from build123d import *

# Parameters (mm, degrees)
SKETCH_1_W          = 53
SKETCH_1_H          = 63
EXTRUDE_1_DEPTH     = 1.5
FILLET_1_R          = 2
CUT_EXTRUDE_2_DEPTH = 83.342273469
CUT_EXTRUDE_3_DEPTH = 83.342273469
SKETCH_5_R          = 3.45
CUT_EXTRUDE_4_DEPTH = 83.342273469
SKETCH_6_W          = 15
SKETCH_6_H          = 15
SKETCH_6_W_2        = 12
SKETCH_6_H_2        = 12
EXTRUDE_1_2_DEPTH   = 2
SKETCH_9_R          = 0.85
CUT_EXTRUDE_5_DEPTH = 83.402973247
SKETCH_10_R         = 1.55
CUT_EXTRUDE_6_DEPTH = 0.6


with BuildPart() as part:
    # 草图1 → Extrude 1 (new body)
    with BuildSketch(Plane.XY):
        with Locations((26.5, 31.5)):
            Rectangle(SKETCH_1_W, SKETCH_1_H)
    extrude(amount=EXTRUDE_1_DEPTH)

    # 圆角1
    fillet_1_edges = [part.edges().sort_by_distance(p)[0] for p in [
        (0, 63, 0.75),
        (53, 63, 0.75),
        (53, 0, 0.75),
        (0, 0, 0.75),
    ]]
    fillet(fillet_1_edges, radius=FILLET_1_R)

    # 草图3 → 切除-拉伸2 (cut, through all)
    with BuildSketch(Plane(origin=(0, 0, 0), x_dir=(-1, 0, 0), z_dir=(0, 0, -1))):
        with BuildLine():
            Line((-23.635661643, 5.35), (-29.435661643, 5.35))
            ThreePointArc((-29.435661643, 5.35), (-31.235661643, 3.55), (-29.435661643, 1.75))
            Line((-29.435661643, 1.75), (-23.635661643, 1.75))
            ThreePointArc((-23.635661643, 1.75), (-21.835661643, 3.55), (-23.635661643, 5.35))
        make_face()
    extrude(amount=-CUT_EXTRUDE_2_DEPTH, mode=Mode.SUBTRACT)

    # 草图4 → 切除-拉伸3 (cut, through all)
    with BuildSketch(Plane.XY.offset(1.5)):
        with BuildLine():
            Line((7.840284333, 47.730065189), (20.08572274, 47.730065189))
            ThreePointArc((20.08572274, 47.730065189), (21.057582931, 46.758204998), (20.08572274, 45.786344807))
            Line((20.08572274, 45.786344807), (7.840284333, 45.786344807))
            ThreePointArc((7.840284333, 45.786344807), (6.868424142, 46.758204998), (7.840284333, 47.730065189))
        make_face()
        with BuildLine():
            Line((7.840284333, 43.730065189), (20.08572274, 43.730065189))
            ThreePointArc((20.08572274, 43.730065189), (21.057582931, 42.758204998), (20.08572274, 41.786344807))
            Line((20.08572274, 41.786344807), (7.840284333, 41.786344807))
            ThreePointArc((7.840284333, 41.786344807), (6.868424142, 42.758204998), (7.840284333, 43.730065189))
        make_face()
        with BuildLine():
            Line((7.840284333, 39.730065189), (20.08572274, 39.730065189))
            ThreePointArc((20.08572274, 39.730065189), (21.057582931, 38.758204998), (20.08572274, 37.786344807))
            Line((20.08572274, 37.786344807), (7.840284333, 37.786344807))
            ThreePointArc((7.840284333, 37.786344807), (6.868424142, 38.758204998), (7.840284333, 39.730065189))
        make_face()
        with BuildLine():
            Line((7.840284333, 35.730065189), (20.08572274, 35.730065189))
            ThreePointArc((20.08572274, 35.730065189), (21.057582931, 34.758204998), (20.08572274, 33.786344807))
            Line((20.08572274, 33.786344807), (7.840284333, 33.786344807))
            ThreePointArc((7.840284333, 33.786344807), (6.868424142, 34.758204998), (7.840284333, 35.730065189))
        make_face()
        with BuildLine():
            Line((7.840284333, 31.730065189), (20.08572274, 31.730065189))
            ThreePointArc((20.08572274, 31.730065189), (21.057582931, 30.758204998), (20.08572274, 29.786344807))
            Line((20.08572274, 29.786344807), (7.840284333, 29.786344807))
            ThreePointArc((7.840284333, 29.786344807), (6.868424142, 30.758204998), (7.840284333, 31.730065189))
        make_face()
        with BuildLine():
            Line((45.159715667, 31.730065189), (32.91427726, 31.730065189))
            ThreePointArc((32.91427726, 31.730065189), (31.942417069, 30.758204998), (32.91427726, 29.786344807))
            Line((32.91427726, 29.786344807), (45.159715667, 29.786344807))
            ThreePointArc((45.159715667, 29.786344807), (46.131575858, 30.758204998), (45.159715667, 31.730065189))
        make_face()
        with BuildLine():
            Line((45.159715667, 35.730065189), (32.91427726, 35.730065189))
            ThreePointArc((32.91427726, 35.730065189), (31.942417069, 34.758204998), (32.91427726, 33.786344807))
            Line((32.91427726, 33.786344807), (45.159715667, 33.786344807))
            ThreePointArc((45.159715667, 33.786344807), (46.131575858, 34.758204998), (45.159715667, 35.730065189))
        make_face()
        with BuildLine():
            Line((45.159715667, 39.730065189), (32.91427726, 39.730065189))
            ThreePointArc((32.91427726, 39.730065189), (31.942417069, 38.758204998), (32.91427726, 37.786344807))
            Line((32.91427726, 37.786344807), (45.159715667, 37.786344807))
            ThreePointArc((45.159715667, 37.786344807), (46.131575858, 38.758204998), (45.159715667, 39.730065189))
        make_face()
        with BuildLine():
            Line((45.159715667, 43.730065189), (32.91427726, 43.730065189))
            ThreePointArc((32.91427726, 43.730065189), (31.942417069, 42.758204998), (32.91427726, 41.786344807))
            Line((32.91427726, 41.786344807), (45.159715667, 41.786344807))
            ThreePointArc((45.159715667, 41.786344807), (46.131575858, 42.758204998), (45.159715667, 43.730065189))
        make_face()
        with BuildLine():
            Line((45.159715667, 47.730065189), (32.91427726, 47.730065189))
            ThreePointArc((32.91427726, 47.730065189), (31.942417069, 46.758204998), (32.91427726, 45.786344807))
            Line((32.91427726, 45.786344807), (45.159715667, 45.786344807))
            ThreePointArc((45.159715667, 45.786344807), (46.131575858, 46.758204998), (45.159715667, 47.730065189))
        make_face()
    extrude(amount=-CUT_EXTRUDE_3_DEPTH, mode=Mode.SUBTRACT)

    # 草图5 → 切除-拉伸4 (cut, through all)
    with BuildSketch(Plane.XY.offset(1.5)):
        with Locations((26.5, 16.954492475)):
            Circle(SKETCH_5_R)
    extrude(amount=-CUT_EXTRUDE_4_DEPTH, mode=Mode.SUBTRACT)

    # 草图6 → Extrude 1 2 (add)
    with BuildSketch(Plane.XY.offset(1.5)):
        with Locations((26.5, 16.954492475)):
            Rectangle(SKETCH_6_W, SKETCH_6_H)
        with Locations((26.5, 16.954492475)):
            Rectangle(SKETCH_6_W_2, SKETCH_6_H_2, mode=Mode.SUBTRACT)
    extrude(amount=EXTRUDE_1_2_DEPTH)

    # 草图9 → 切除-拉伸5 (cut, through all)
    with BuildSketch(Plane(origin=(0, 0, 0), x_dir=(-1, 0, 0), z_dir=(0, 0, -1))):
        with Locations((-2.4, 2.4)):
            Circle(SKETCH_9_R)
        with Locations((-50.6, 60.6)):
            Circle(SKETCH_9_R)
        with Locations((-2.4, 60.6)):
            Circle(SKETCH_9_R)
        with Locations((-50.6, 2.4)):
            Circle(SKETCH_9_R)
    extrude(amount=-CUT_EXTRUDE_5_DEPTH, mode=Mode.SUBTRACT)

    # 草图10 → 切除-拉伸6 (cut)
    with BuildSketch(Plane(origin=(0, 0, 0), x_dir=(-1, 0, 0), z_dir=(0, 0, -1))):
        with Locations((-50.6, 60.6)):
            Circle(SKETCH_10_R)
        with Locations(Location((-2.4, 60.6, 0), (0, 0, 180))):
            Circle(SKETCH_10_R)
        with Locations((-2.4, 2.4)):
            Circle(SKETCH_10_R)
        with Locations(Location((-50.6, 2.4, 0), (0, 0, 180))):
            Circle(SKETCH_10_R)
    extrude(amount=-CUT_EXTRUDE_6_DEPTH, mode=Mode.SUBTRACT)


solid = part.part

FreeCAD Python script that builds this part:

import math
import FreeCAD as App
import Part
import Sketcher
Q = App.Units.Quantity


def edges_at(feature, points):
    """Names of the edges that pass closest to the given points."""
    edges = feature.Shape.Edges
    near = lambda p: min(range(len(edges)), key=lambda i: edges[i].distToShape(Part.Vertex(*p))[0])
    return sorted({f"Edge{near(p) + 1}" for p in points})

doc = App.newDocument("Part")
body = doc.addObject("PartDesign::Body", "Body")

# Sketch on XY plane
sketch1 = doc.addObject("Sketcher::SketchObject", "Sketch")
body.addObject(sketch1)
sketch1.AttachmentSupport = (doc.XY_Plane, [""])
sketch1.MapMode = "FlatFace"
sketch1.addGeometry([
    Part.LineSegment(App.Vector(0, 63, 0), App.Vector(0, 0, 0)),
    Part.LineSegment(App.Vector(0, 0, 0), App.Vector(53, 0, 0)),
    Part.LineSegment(App.Vector(53, 0, 0), App.Vector(53, 63, 0)),
    Part.LineSegment(App.Vector(53, 63, 0), App.Vector(0, 63, 0)),
], False)
sketch1.addConstraint([
    Sketcher.Constraint("Coincident", 0, 2, 1, 1),
    Sketcher.Constraint("Coincident", 1, 2, 2, 1),
    Sketcher.Constraint("Coincident", 2, 2, 3, 1),
    Sketcher.Constraint("Coincident", 3, 2, 0, 1),
    Sketcher.Constraint("Vertical", 0),
    Sketcher.Constraint("Horizontal", 1),
    Sketcher.Constraint("Vertical", 2),
    Sketcher.Constraint("Horizontal", 3),
    Sketcher.Constraint("Coincident", 0, 2, -1, 1),
    Sketcher.Constraint("DistanceX", 1, 1, 1, 2, Q("53 mm")),
    Sketcher.Constraint("DistanceY", 0, 2, 0, 1, Q("63 mm")),
])
pad1 = doc.addObject("PartDesign::Pad", "Pad")
body.addObject(pad1)
pad1.Profile = sketch1
pad1.Length = 1.5
doc.recompute()

fillet = doc.addObject("PartDesign::Fillet", "Fillet")
body.addObject(fillet)
fillet.Base = (pad1, edges_at(pad1, [
    (0, 63, 0.75),
    (53, 63, 0.75),
    (53, 0, 0.75),
    (0, 0, 0.75),
]))
fillet.Radius = 2

# Sketch on XY plane
sketch2 = doc.addObject("Sketcher::SketchObject", "Sketch001")
body.addObject(sketch2)
sketch2.AttachmentSupport = (doc.XY_Plane, [""])
sketch2.MapMode = "FlatFace"
sketch2.addGeometry([
    Part.LineSegment(App.Vector(23.6, 5.3, 0), App.Vector(29.4, 5.3, 0)),
    Part.ArcOfCircle(Part.Circle(App.Vector(29.4, 3.5, 0), App.Vector(0, 0, 1), 1.8), math.radians(-90), math.radians(90)),
    Part.LineSegment(App.Vector(29.4, 1.8, 0), App.Vector(23.6, 1.8, 0)),
    Part.ArcOfCircle(Part.Circle(App.Vector(23.6, 3.5, 0), App.Vector(0, 0, 1), 1.8), math.radians(90), math.radians(270)),
], False)
sketch2.addConstraint([
    Sketcher.Constraint("Tangent", 0, 2, 1, 2),
    Sketcher.Constraint("Tangent", 1, 1, 2, 1),
    Sketcher.Constraint("Tangent", 2, 2, 3, 2),
    Sketcher.Constraint("Tangent", 3, 1, 0, 1),
    Sketcher.Constraint("Horizontal", 0),
    Sketcher.Constraint("Horizontal", 2),
    Sketcher.Constraint("Radius", 1, Q("1.8 mm")),
    Sketcher.Constraint("DistanceX", 0, 1, 0, 2, Q("5.8 mm")),
    Sketcher.Constraint("DistanceY", -1, 1, 1, 3, Q("3.55 mm")),
    Sketcher.Constraint("DistanceX", -1, 1, 1, 3, Q("29.435662 mm")),
])
pocket1 = doc.addObject("PartDesign::Pocket", "Pocket")
body.addObject(pocket1)
pocket1.Profile = sketch2
pocket1.Type = "ThroughAll"
pocket1.Reversed = True

# Sketch on XY plane
sketch3 = doc.addObject("Sketcher::SketchObject", "Sketch002")
body.addObject(sketch3)
sketch3.AttachmentSupport = (doc.XY_Plane, [""])
sketch3.MapMode = "FlatFace"
sketch3.AttachmentOffset = App.Placement(App.Vector(0, 0, 1.5), App.Rotation())
sketch3.addGeometry([
    Part.LineSegment(App.Vector(20.1, 47.7, 0), App.Vector(7.8, 47.7, 0)),  # 0
    Part.ArcOfCircle(Part.Circle(App.Vector(7.8, 46.8, 0), App.Vector(0, 0, 1), 1), math.radians(90), math.radians(270)),  # 1
    Part.LineSegment(App.Vector(7.8, 45.8, 0), App.Vector(20.1, 45.8, 0)),  # 2
    Part.ArcOfCircle(Part.Circle(App.Vector(20.1, 46.8, 0), App.Vector(0, 0, 1), 1), math.radians(-90), math.radians(90)),  # 3
    Part.LineSegment(App.Vector(20.1, 43.7, 0), App.Vector(7.8, 43.7, 0)),  # 4
    Part.ArcOfCircle(Part.Circle(App.Vector(7.8, 42.8, 0), App.Vector(0, 0, 1), 1), math.radians(90), math.radians(270)),  # 5
    Part.LineSegment(App.Vector(7.8, 41.8, 0), App.Vector(20.1, 41.8, 0)),  # 6
    Part.ArcOfCircle(Part.Circle(App.Vector(20.1, 42.8, 0), App.Vector(0, 0, 1), 1), math.radians(-90), math.radians(90)),  # 7
    Part.LineSegment(App.Vector(20.1, 39.7, 0), App.Vector(7.8, 39.7, 0)),  # 8
    Part.ArcOfCircle(Part.Circle(App.Vector(7.8, 38.8, 0), App.Vector(0, 0, 1), 1), math.radians(90), math.radians(270)),  # 9
    Part.LineSegment(App.Vector(7.8, 37.8, 0), App.Vector(20.1, 37.8, 0)),  # 10
    Part.ArcOfCircle(Part.Circle(App.Vector(20.1, 38.8, 0), App.Vector(0, 0, 1), 1), math.radians(-90), math.radians(90)),  # 11
    Part.LineSegment(App.Vector(20.1, 35.7, 0), App.Vector(7.8, 35.7, 0)),  # 12
    Part.ArcOfCircle(Part.Circle(App.Vector(7.8, 34.8, 0), App.Vector(0, 0, 1), 1), math.radians(90), math.radians(270)),  # 13
    Part.LineSegment(App.Vector(7.8, 33.8, 0), App.Vector(20.1, 33.8, 0)),  # 14
    Part.ArcOfCircle(Part.Circle(App.Vector(20.1, 34.8, 0), App.Vector(0, 0, 1), 1), math.radians(-90), math.radians(90)),  # 15
    Part.LineSegment(App.Vector(20.1, 31.7, 0), App.Vector(7.8, 31.7, 0)),  # 16
    Part.ArcOfCircle(Part.Circle(App.Vector(7.8, 30.8, 0), App.Vector(0, 0, 1), 1), math.radians(90), math.radians(270)),  # 17
    Part.LineSegment(App.Vector(7.8, 29.8, 0), App.Vector(20.1, 29.8, 0)),  # 18
    Part.ArcOfCircle(Part.Circle(App.Vector(20.1, 30.8, 0), App.Vector(0, 0, 1), 1), math.radians(-90), math.radians(90)),  # 19
    Part.LineSegment(App.Vector(45.2, 31.7, 0), App.Vector(32.9, 31.7, 0)),  # 20
    Part.ArcOfCircle(Part.Circle(App.Vector(32.9, 30.8, 0), App.Vector(0, 0, 1), 1), math.radians(90), math.radians(270)),  # 21
    Part.LineSegment(App.Vector(32.9, 29.8, 0), App.Vector(45.2, 29.8, 0)),  # 22
    Part.ArcOfCircle(Part.Circle(App.Vector(45.2, 30.8, 0), App.Vector(0, 0, 1), 1), math.radians(-90), math.radians(90)),  # 23
    Part.LineSegment(App.Vector(45.2, 35.7, 0), App.Vector(32.9, 35.7, 0)),  # 24
    Part.ArcOfCircle(Part.Circle(App.Vector(32.9, 34.8, 0), App.Vector(0, 0, 1), 1), math.radians(90), math.radians(270)),  # 25
    Part.LineSegment(App.Vector(32.9, 33.8, 0), App.Vector(45.2, 33.8, 0)),  # 26
    Part.ArcOfCircle(Part.Circle(App.Vector(45.2, 34.8, 0), App.Vector(0, 0, 1), 1), math.radians(-90), math.radians(90)),  # 27
    Part.LineSegment(App.Vector(45.2, 39.7, 0), App.Vector(32.9, 39.7, 0)),  # 28
    Part.ArcOfCircle(Part.Circle(App.Vector(32.9, 38.8, 0), App.Vector(0, 0, 1), 1), math.radians(90), math.radians(270)),  # 29
    Part.LineSegment(App.Vector(32.9, 37.8, 0), App.Vector(45.2, 37.8, 0)),  # 30
    Part.ArcOfCircle(Part.Circle(App.Vector(45.2, 38.8, 0), App.Vector(0, 0, 1), 1), math.radians(-90), math.radians(90)),  # 31
    Part.LineSegment(App.Vector(45.2, 43.7, 0), App.Vector(32.9, 43.7, 0)),  # 32
    Part.ArcOfCircle(Part.Circle(App.Vector(32.9, 42.8, 0), App.Vector(0, 0, 1), 1), math.radians(90), math.radians(270)),  # 33
    Part.LineSegment(App.Vector(32.9, 41.8, 0), App.Vector(45.2, 41.8, 0)),  # 34
    Part.ArcOfCircle(Part.Circle(App.Vector(45.2, 42.8, 0), App.Vector(0, 0, 1), 1), math.radians(-90), math.radians(90)),  # 35
    Part.LineSegment(App.Vector(45.2, 47.7, 0), App.Vector(32.9, 47.7, 0)),  # 36
    Part.ArcOfCircle(Part.Circle(App.Vector(32.9, 46.8, 0), App.Vector(0, 0, 1), 1), math.radians(90), math.radians(270)),  # 37
    Part.LineSegment(App.Vector(32.9, 45.8, 0), App.Vector(45.2, 45.8, 0)),  # 38
    Part.ArcOfCircle(Part.Circle(App.Vector(45.2, 46.8, 0), App.Vector(0, 0, 1), 1), math.radians(-90), math.radians(90)),  # 39
], False)
sketch3.addConstraint([
    Sketcher.Constraint("Tangent", 0, 2, 1, 1),
    Sketcher.Constraint("Tangent", 1, 2, 2, 1),
    Sketcher.Constraint("Tangent", 2, 2, 3, 1),
    Sketcher.Constraint("Tangent", 3, 2, 0, 1),
    Sketcher.Constraint("Tangent", 4, 2, 5, 1),
    Sketcher.Constraint("Tangent", 5, 2, 6, 1),
    Sketcher.Constraint("Tangent", 6, 2, 7, 1),
    Sketcher.Constraint("Tangent", 7, 2, 4, 1),
    Sketcher.Constraint("Tangent", 8, 2, 9, 1),
    Sketcher.Constraint("Tangent", 9, 2, 10, 1),
    Sketcher.Constraint("Tangent", 10, 2, 11, 1),
    Sketcher.Constraint("Tangent", 11, 2, 8, 1),
    Sketcher.Constraint("Tangent", 12, 2, 13, 1),
    Sketcher.Constraint("Tangent", 13, 2, 14, 1),
    Sketcher.Constraint("Tangent", 14, 2, 15, 1),
    Sketcher.Constraint("Tangent", 15, 2, 12, 1),
    Sketcher.Constraint("Tangent", 16, 2, 17, 1),
    Sketcher.Constraint("Tangent", 17, 2, 18, 1),
    Sketcher.Constraint("Tangent", 18, 2, 19, 1),
    Sketcher.Constraint("Tangent", 19, 2, 16, 1),
    Sketcher.Constraint("Tangent", 20, 2, 21, 1),
    Sketcher.Constraint("Tangent", 21, 2, 22, 1),
    Sketcher.Constraint("Tangent", 22, 2, 23, 1),
    Sketcher.Constraint("Tangent", 23, 2, 20, 1),
    Sketcher.Constraint("Tangent", 24, 2, 25, 1),
    Sketcher.Constraint("Tangent", 25, 2, 26, 1),
    Sketcher.Constraint("Tangent", 26, 2, 27, 1),
    Sketcher.Constraint("Tangent", 27, 2, 24, 1),
    Sketcher.Constraint("Tangent", 28, 2, 29, 1),
    Sketcher.Constraint("Tangent", 29, 2, 30, 1),
    Sketcher.Constraint("Tangent", 30, 2, 31, 1),
    Sketcher.Constraint("Tangent", 31, 2, 28, 1),
    Sketcher.Constraint("Tangent", 32, 2, 33, 1),
    Sketcher.Constraint("Tangent", 33, 2, 34, 1),
    Sketcher.Constraint("Tangent", 34, 2, 35, 1),
    Sketcher.Constraint("Tangent", 35, 2, 32, 1),
    Sketcher.Constraint("Tangent", 36, 2, 37, 1),
    Sketcher.Constraint("Tangent", 37, 2, 38, 1),
    Sketcher.Constraint("Tangent", 38, 2, 39, 1),
    Sketcher.Constraint("Tangent", 39, 2, 36, 1),
    Sketcher.Constraint("Horizontal", 0),
    Sketcher.Constraint("Horizontal", 2),
    Sketcher.Constraint("Horizontal", 4),
    Sketcher.Constraint("Horizontal", 6),
    Sketcher.Constraint("Horizontal", 8),
    Sketcher.Constraint("Horizontal", 10),
    Sketcher.Constraint("Horizontal", 12),
    Sketcher.Constraint("Horizontal", 14),
    Sketcher.Constraint("Horizontal", 16),
    Sketcher.Constraint("Horizontal", 18),
    Sketcher.Constraint("Horizontal", 20),
    Sketcher.Constraint("Horizontal", 22),
    Sketcher.Constraint("Horizontal", 24),
    Sketcher.Constraint("Horizontal", 26),
    Sketcher.Constraint("Horizontal", 28),
    Sketcher.Constraint("Horizontal", 30),
    Sketcher.Constraint("Horizontal", 32),
    Sketcher.Constraint("Horizontal", 34),
    Sketcher.Constraint("Horizontal", 36),
    Sketcher.Constraint("Horizontal", 38),
    Sketcher.Constraint("Equal", 3, 5),
    Sketcher.Constraint("Equal", 7, 9),
    Sketcher.Constraint("Equal", 11, 13),
    Sketcher.Constraint("Equal", 15, 17),
    Sketcher.Constraint("Equal", 19, 21),
    Sketcher.Constraint("Equal", 23, 25),
    Sketcher.Constraint("Equal", 27, 29),
    Sketcher.Constraint("Equal", 31, 33),
    Sketcher.Constraint("Equal", 35, 37),
    Sketcher.Constraint("Horizontal", 19, 3, 21, 3),
    Sketcher.Constraint("Horizontal", 15, 3, 25, 3),
    Sketcher.Constraint("Horizontal", 11, 3, 29, 3),
    Sketcher.Constraint("Horizontal", 7, 3, 33, 3),
    Sketcher.Constraint("Horizontal", 3, 3, 37, 3),
    Sketcher.Constraint("Vertical", 1, 3, 5, 3),
    Sketcher.Constraint("Vertical", 3, 3, 7, 3),
    Sketcher.Constraint("Vertical", 5, 3, 9, 3),
    Sketcher.Constraint("Vertical", 7, 3, 11, 3),
    Sketcher.Constraint("Vertical", 9, 3, 13, 3),
    Sketcher.Constraint("Vertical", 11, 3, 15, 3),
    Sketcher.Constraint("Vertical", 13, 3, 17, 3),
    Sketcher.Constraint("Vertical", 15, 3, 19, 3),
    Sketcher.Constraint("Vertical", 21, 3, 25, 3),
    Sketcher.Constraint("Vertical", 23, 3, 27, 3),
    Sketcher.Constraint("Vertical", 25, 3, 29, 3),
    Sketcher.Constraint("Vertical", 27, 3, 31, 3),
    Sketcher.Constraint("Vertical", 29, 3, 33, 3),
    Sketcher.Constraint("Vertical", 31, 3, 35, 3),
    Sketcher.Constraint("Vertical", 33, 3, 37, 3),
    Sketcher.Constraint("Vertical", 35, 3, 39, 3),
    Sketcher.Constraint("Equal", 18, 20),
    Sketcher.Constraint("DistanceY", 5, 3, 1, 3, Q("4 mm")),
    Sketcher.Constraint("DistanceY", 9, 3, 5, 3, Q("4 mm")),
    Sketcher.Constraint("DistanceY", 13, 3, 9, 3, Q("4 mm")),
    Sketcher.Constraint("DistanceY", 17, 3, 13, 3, Q("4 mm")),
    Sketcher.Constraint("Radius", 1, Q("0.97186 mm")),
    Sketcher.Constraint("DistanceX", 0, 2, 0, 1, Q("12.245438 mm")),
    Sketcher.Constraint("DistanceX", -1, 1, 1, 3, Q("7.840284 mm")),
    Sketcher.Constraint("DistanceY", -1, 1, 1, 3, Q("46.758205 mm")),
    Sketcher.Constraint("DistanceX", -1, 1, 21, 3, Q("32.914277 mm")),
])
pocket2 = doc.addObject("PartDesign::Pocket", "Pocket001")
body.addObject(pocket2)
pocket2.Profile = sketch3
pocket2.Type = "ThroughAll"

# Sketch on XY plane
sketch4 = doc.addObject("Sketcher::SketchObject", "Sketch003")
body.addObject(sketch4)
sketch4.AttachmentSupport = (doc.XY_Plane, [""])
sketch4.MapMode = "FlatFace"
sketch4.AttachmentOffset = App.Placement(App.Vector(0, 0, 1.5), App.Rotation())
sketch4.addGeometry(Part.Circle(App.Vector(26.5, 17, 0), App.Vector(0, 0, 1), 3.5), False)
sketch4.addConstraint([
    Sketcher.Constraint("Diameter", 0, Q("6.9 mm")),
    Sketcher.Constraint("DistanceX", -1, 1, 0, 3, Q("26.5 mm")),
    Sketcher.Constraint("DistanceY", -1, 1, 0, 3, Q("16.954492 mm")),
])
pocket3 = doc.addObject("PartDesign::Pocket", "Pocket002")
body.addObject(pocket3)
pocket3.Profile = sketch4
pocket3.Type = "ThroughAll"

# Sketch on XY plane
sketch5 = doc.addObject("Sketcher::SketchObject", "Sketch004")
body.addObject(sketch5)
sketch5.AttachmentSupport = (doc.XY_Plane, [""])
sketch5.MapMode = "FlatFace"
sketch5.AttachmentOffset = App.Placement(App.Vector(0, 0, 1.5), App.Rotation())
sketch5.addGeometry([
    Part.LineSegment(App.Vector(19, 24, 0), App.Vector(19, 9, 0)),  # 0
    Part.LineSegment(App.Vector(19, 9, 0), App.Vector(34, 9, 0)),  # 1
    Part.LineSegment(App.Vector(34, 9, 0), App.Vector(34, 24, 0)),  # 2
    Part.LineSegment(App.Vector(34, 24, 0), App.Vector(19, 24, 0)),  # 3
    Part.LineSegment(App.Vector(32, 11, 0), App.Vector(20, 11, 0)),  # 4
    Part.LineSegment(App.Vector(20, 11, 0), App.Vector(20, 23, 0)),  # 5
    Part.LineSegment(App.Vector(20, 23, 0), App.Vector(32, 23, 0)),  # 6
    Part.LineSegment(App.Vector(32, 23, 0), App.Vector(32, 11, 0)),  # 7
], False)
sketch5.addConstraint([
    Sketcher.Constraint("Coincident", 0, 2, 1, 1),
    Sketcher.Constraint("Coincident", 1, 2, 2, 1),
    Sketcher.Constraint("Coincident", 2, 2, 3, 1),
    Sketcher.Constraint("Coincident", 3, 2, 0, 1),
    Sketcher.Constraint("Coincident", 4, 2, 5, 1),
    Sketcher.Constraint("Coincident", 5, 2, 6, 1),
    Sketcher.Constraint("Coincident", 6, 2, 7, 1),
    Sketcher.Constraint("Coincident", 7, 2, 4, 1),
    Sketcher.Constraint("Vertical", 0),
    Sketcher.Constraint("Horizontal", 1),
    Sketcher.Constraint("Vertical", 2),
    Sketcher.Constraint("Horizontal", 3),
    Sketcher.Constraint("Horizontal", 4),
    Sketcher.Constraint("Vertical", 5),
    Sketcher.Constraint("Horizontal", 6),
    Sketcher.Constraint("Vertical", 7),
    Sketcher.Constraint("Equal", 3, 0),
    Sketcher.Constraint("Equal", 6, 5),
    Sketcher.Constraint("DistanceX", 1, 1, 1, 2, Q("15 mm")),
    Sketcher.Constraint("DistanceX", 4, 2, 4, 1, Q("12 mm")),
    Sketcher.Constraint("DistanceX", -1, 1, 0, 2, Q("19 mm")),
    Sketcher.Constraint("DistanceX", -1, 1, 4, 2, Q("20.5 mm")),
    Sketcher.Constraint("DistanceY", 0, 2, 4, 2, Q("1.5 mm")),
    Sketcher.Constraint("DistanceY", -1, 1, 0, 2, Q("9.454492 mm")),
])
pad2 = doc.addObject("PartDesign::Pad", "Pad001")
body.addObject(pad2)
pad2.Profile = sketch5
pad2.Length = 2

# Sketch on XY plane
sketch6 = doc.addObject("Sketcher::SketchObject", "Sketch005")
body.addObject(sketch6)
sketch6.AttachmentSupport = (doc.XY_Plane, [""])
sketch6.MapMode = "FlatFace"
sketch6.addGeometry([
    Part.Circle(App.Vector(2.4, 2.4, 0), App.Vector(0, 0, 1), 0.8),
    Part.Circle(App.Vector(50.6, 60.6, 0), App.Vector(0, 0, 1), 0.8),
    Part.Circle(App.Vector(2.4, 60.6, 0), App.Vector(0, 0, 1), 0.8),
    Part.Circle(App.Vector(50.6, 2.4, 0), App.Vector(0, 0, 1), 0.8),
], False)
sketch6.addConstraint([
    Sketcher.Constraint("Equal", 0, 1),
    Sketcher.Constraint("Equal", 1, 2),
    Sketcher.Constraint("Equal", 2, 3),
    Sketcher.Constraint("Horizontal", 1, 3, 2, 3),
    Sketcher.Constraint("Horizontal", 0, 3, 3, 3),
    Sketcher.Constraint("Vertical", 0, 3, 2, 3),
    Sketcher.Constraint("Vertical", 1, 3, 3, 3),
    Sketcher.Constraint("Diameter", 0, Q("1.7 mm")),
    Sketcher.Constraint("DistanceX", -1, 1, 0, 3, Q("2.4 mm")),
    Sketcher.Constraint("DistanceY", -1, 1, 0, 3, Q("2.4 mm")),
    Sketcher.Constraint("DistanceX", -1, 1, 1, 3, Q("50.6 mm")),
    Sketcher.Constraint("DistanceY", -1, 1, 1, 3, Q("60.6 mm")),
])
pocket4 = doc.addObject("PartDesign::Pocket", "Pocket003")
body.addObject(pocket4)
pocket4.Profile = sketch6
pocket4.Type = "ThroughAll"
pocket4.Reversed = True

# Sketch on XY plane
sketch7 = doc.addObject("Sketcher::SketchObject", "Sketch006")
body.addObject(sketch7)
sketch7.AttachmentSupport = (doc.XY_Plane, [""])
sketch7.MapMode = "FlatFace"
sketch7.addGeometry([
    Part.Circle(App.Vector(50.6, 60.6, 0), App.Vector(0, 0, 1), 1.6),
    Part.Circle(App.Vector(2.4, 60.6, 0), App.Vector(0, 0, 1), 1.6),
    Part.Circle(App.Vector(2.4, 2.4, 0), App.Vector(0, 0, 1), 1.6),
    Part.Circle(App.Vector(50.6, 2.4, 0), App.Vector(0, 0, 1), 1.6),
], False)
sketch7.addConstraint([
    Sketcher.Constraint("Equal", 0, 1),
    Sketcher.Constraint("Equal", 1, 2),
    Sketcher.Constraint("Equal", 2, 3),
    Sketcher.Constraint("Horizontal", 0, 3, 1, 3),
    Sketcher.Constraint("Horizontal", 2, 3, 3, 3),
    Sketcher.Constraint("Vertical", 1, 3, 2, 3),
    Sketcher.Constraint("Vertical", 0, 3, 3, 3),
    Sketcher.Constraint("Diameter", 0, Q("3.1 mm")),
    Sketcher.Constraint("DistanceX", -1, 1, 0, 3, Q("50.6 mm")),
    Sketcher.Constraint("DistanceY", -1, 1, 0, 3, Q("60.6 mm")),
    Sketcher.Constraint("DistanceX", -1, 1, 1, 3, Q("2.4 mm")),
    Sketcher.Constraint("DistanceY", -1, 1, 2, 3, Q("2.4 mm")),
])
pocket5 = doc.addObject("PartDesign::Pocket", "Pocket004")
body.addObject(pocket5)
pocket5.Profile = sketch7
pocket5.Length = 0.6
pocket5.Reversed = True

doc.recompute()
